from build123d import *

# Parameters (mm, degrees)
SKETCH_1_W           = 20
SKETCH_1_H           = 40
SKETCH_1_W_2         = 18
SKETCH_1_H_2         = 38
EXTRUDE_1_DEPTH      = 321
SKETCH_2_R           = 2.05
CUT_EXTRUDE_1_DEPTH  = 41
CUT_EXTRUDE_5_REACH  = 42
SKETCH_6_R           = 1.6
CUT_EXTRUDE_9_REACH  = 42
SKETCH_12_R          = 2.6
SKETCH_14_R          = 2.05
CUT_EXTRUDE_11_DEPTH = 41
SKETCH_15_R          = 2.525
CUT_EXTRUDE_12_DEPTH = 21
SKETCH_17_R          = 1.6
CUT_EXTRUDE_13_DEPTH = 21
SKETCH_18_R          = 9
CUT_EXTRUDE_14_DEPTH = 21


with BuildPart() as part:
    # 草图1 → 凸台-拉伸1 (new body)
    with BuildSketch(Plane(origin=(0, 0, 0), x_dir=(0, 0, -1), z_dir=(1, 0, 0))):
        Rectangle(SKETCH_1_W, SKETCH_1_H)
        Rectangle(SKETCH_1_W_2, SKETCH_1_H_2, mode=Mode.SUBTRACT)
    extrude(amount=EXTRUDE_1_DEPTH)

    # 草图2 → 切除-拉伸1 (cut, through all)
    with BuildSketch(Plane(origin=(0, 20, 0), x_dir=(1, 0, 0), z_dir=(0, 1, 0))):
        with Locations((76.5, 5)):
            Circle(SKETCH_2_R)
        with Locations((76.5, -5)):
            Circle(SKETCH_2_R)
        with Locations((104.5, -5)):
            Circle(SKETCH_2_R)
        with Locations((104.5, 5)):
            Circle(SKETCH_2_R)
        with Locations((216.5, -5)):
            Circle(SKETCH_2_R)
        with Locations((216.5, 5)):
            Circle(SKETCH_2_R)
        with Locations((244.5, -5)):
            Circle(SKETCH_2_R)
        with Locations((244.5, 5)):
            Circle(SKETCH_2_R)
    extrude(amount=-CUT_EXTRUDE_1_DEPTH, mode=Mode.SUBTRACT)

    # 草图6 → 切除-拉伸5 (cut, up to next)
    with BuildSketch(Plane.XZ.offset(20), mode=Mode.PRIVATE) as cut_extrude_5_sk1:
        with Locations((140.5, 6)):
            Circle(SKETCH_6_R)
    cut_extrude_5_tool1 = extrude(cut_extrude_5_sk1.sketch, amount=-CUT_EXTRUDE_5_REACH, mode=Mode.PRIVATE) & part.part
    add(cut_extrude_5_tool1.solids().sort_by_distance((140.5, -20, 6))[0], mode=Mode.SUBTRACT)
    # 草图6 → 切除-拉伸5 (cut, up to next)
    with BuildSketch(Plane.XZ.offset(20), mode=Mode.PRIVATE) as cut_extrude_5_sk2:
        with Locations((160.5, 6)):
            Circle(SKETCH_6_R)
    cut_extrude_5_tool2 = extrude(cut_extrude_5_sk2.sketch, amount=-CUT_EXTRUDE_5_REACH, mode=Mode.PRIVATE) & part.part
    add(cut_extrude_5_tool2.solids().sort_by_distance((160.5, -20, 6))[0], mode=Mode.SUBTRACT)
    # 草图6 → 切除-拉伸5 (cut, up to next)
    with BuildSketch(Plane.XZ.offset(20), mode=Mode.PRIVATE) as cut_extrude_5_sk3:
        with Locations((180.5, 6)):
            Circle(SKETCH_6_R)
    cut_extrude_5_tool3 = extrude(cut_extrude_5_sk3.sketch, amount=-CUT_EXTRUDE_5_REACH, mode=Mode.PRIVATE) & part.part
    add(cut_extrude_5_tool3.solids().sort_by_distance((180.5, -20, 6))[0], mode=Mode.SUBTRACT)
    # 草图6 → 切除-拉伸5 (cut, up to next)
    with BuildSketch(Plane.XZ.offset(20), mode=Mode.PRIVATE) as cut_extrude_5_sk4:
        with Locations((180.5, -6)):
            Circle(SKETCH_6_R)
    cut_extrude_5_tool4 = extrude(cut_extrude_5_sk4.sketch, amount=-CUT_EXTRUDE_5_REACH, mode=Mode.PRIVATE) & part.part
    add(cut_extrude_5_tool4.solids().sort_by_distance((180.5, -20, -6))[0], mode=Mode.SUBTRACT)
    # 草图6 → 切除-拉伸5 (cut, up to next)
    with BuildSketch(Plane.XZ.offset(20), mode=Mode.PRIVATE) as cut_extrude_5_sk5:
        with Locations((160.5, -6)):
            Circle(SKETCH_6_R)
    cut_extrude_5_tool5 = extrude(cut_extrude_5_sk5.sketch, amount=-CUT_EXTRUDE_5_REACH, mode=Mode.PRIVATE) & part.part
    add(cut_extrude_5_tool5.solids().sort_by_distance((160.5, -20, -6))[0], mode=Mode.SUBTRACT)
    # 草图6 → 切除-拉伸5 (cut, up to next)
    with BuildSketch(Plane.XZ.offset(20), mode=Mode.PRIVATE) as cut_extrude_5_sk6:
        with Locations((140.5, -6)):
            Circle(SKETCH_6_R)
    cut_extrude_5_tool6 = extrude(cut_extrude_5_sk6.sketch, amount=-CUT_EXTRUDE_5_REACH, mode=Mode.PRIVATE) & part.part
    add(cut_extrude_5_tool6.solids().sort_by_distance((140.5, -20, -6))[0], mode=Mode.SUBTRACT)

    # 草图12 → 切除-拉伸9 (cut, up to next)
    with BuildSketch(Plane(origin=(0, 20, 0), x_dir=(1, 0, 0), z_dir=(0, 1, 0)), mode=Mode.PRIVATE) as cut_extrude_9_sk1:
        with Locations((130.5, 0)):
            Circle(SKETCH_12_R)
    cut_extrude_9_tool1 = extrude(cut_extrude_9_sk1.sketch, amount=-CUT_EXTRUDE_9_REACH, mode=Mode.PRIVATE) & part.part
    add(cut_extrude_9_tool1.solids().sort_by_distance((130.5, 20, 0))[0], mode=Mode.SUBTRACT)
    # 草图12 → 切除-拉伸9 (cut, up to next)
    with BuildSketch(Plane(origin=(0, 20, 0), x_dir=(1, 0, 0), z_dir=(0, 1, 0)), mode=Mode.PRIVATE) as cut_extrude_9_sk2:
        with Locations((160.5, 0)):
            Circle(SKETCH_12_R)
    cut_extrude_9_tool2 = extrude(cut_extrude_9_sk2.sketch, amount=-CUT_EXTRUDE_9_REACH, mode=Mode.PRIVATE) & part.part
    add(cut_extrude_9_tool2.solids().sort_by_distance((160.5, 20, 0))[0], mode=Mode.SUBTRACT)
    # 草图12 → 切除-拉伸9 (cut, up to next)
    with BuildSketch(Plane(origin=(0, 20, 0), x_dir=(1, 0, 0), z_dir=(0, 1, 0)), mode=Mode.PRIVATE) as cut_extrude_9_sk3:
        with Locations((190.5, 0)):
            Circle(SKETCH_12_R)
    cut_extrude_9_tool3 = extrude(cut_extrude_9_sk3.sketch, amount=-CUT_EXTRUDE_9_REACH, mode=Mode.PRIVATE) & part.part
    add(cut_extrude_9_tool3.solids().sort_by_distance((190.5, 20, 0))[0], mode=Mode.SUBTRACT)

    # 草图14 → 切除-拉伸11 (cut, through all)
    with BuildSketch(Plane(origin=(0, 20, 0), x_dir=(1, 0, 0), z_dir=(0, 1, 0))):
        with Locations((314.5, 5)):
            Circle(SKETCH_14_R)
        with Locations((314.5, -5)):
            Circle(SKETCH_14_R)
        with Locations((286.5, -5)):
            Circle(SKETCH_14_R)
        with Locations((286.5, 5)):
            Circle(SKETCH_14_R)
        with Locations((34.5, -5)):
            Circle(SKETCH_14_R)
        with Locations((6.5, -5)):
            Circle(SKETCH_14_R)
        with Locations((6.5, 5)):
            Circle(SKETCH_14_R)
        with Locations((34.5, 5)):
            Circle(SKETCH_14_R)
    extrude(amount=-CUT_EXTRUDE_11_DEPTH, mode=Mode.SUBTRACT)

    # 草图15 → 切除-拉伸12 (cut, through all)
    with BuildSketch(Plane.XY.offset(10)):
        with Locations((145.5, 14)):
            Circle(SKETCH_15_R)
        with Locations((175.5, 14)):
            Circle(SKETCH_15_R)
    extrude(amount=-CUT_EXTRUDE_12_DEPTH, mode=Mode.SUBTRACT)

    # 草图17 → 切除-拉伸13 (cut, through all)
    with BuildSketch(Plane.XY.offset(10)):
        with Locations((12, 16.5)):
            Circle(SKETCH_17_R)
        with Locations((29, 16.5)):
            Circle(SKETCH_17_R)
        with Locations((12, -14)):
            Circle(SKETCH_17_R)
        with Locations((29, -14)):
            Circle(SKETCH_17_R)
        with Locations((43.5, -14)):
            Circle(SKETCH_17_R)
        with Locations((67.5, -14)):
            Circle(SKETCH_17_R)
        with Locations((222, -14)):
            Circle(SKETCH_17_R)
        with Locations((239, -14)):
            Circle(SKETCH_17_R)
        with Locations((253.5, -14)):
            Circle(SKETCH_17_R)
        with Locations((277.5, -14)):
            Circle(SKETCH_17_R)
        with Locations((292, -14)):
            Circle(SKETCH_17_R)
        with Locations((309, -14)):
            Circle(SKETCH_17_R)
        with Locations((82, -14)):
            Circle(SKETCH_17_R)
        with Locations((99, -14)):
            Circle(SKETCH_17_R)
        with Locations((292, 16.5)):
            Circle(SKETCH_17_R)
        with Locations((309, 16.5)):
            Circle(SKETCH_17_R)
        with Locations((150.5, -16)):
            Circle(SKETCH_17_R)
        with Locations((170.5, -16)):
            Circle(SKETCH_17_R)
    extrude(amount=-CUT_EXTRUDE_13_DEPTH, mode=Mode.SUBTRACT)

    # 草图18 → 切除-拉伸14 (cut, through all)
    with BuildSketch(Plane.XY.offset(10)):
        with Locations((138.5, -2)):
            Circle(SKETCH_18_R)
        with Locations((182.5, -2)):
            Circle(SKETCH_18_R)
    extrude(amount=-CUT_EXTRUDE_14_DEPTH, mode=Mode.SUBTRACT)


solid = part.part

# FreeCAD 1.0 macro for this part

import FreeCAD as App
import Part
import Sketcher


def add_polygon(sketch, points):
    """Adds a closed chain of lines whose ends are joined by coincident constraints."""
    first, n = sketch.GeometryCount, len(points)
    for a, b in zip(points, points[1:] + points[:1]):
        sketch.addGeometry(Part.LineSegment(App.Vector(*a, 0), App.Vector(*b, 0)), False)
    for i in range(n):
        sketch.addConstraint(Sketcher.Constraint("Coincident", first + i, 2, first + (i + 1) % n, 1))

doc = App.newDocument("Part")
params = doc.addObject("Spreadsheet::Sheet", "Params")
for row, (alias, value) in enumerate([
    ("sketch1_width", "40 mm"),
    ("sketch1_width2", "38 mm"),
    ("sketch1_height", "20 mm"),
    ("sketch1_height2", "18 mm"),
    ("pad1_length", "321 mm"),
    ("sketch2_diameter", "4.1 mm"),
    ("sketch3_diameter", "3.2 mm"),
    ("sketch4_diameter", "3.2 mm"),
    ("sketch5_diameter", "3.2 mm"),
    ("sketch6_diameter", "3.2 mm"),
    ("sketch7_diameter", "3.2 mm"),
    ("sketch8_diameter", "3.2 mm"),
    ("sketch9_diameter", "5.2 mm"),
    ("sketch10_diameter", "5.2 mm"),
    ("sketch11_diameter", "5.2 mm"),
    ("sketch12_diameter", "4.1 mm"),
    ("sketch13_diameter", "5.05 mm"),
    ("sketch14_diameter", "3.2 mm"),
    ("sketch15_diameter", "18 mm"),
], start=1):
    params.set(f"A{row}", alias)
    params.set(f"B{row}", "=" + value)
    params.setAlias(f"B{row}", alias)

body = doc.addObject("PartDesign::Body", "Body")

# Sketch on YZ plane
sketch1 = doc.addObject("Sketcher::SketchObject", "Sketch")
body.addObject(sketch1)
sketch1.AttachmentSupport = (doc.YZ_Plane, [""])
sketch1.MapMode = "FlatFace"
add_polygon(sketch1, [(20, 10), (-20, 10), (-20, -10), (20, -10)])  # lines 0-3
add_polygon(sketch1, [(-19, -9), (-19, 9), (19, 9), (19, -9)])  # lines 4-7
sketch1.addConstraint([
    Sketcher.Constraint("Horizontal", 0),
    Sketcher.Constraint("Vertical", 1),
    Sketcher.Constraint("Horizontal", 2),
    Sketcher.Constraint("Vertical", 3),
    Sketcher.Constraint("Vertical", 4),
    Sketcher.Constraint("Horizontal", 5),
    Sketcher.Constraint("Vertical", 6),
    Sketcher.Constraint("Horizontal", 7),
    Sketcher.Constraint("Symmetric", 0, 2, 2, 2, -1, 1),
    Sketcher.Constraint("Symmetric", 4, 2, 6, 2, -1, 1),
    Sketcher.Constraint("DistanceX", 0, 2, 0, 1, 40.0),
    Sketcher.Constraint("DistanceX", 5, 1, 5, 2, 38.0),
    Sketcher.Constraint("DistanceY", 1, 2, 1, 1, 20.0),
    Sketcher.Constraint("DistanceY", 4, 1, 4, 2, 18.0),
])
sketch1.setExpression("Constraints[18]", "Params.sketch1_width")
sketch1.setExpression("Constraints[19]", "Params.sketch1_width2")
sketch1.setExpression("Constraints[20]", "Params.sketch1_height")
sketch1.setExpression("Constraints[21]", "Params.sketch1_height2")
pad1 = doc.addObject("PartDesign::Pad", "Pad")
body.addObject(pad1)
pad1.Profile = sketch1
pad1.setExpression("Length", "Params.pad1_length")

# Sketch on XZ plane
sketch2 = doc.addObject("Sketcher::SketchObject", "Sketch001")
body.addObject(sketch2)
sketch2.AttachmentSupport = (doc.XZ_Plane, [""])
sketch2.MapMode = "FlatFace"
sketch2.AttachmentOffset = App.Placement(App.Vector(0, 0, -20), App.Rotation())
sketch2.addGeometry([
    Part.Circle(App.Vector(76.5, -5, 0), App.Vector(0, 0, 1), 2),  # 0
    Part.Circle(App.Vector(76.5, 5, 0), App.Vector(0, 0, 1), 2),  # 1
    Part.Circle(App.Vector(104.5, 5, 0), App.Vector(0, 0, 1), 2),  # 2
    Part.Circle(App.Vector(104.5, -5, 0), App.Vector(0, 0, 1), 2),  # 3
    Part.Circle(App.Vector(216.5, 5, 0), App.Vector(0, 0, 1), 2),  # 4
    Part.Circle(App.Vector(216.5, -5, 0), App.Vector(0, 0, 1), 2),  # 5
    Part.Circle(App.Vector(244.5, 5, 0), App.Vector(0, 0, 1), 2),  # 6
    Part.Circle(App.Vector(244.5, -5, 0), App.Vector(0, 0, 1), 2),  # 7
], False)
sketch2.addConstraint([
    Sketcher.Constraint("Equal", 0, 1),
    Sketcher.Constraint("Equal", 1, 2),
    Sketcher.Constraint("Equal", 2, 3),
    Sketcher.Constraint("Equal", 3, 4),
    Sketcher.Constraint("Equal", 4, 5),
    Sketcher.Constraint("Equal", 5, 6),
    Sketcher.Constraint("Equal", 6, 7),
    Sketcher.Constraint("Symmetric", 0, 3, 1, 3, -1),
    Sketcher.Constraint("Symmetric", 2, 3, 3, 3, -1),
    Sketcher.Constraint("Symmetric", 4, 3, 5, 3, -1),
    Sketcher.Constraint("Symmetric", 6, 3, 7, 3, -1),
    Sketcher.Constraint("Horizontal", 1, 3, 2, 3),
    Sketcher.Constraint("Horizontal", 2, 3, 4, 3),
    Sketcher.Constraint("Horizontal", 4, 3, 6, 3),
    Sketcher.Constraint("Diameter", 0, 4.1),
    Sketcher.Constraint("DistanceY", 0, 3, -1, 1, 5.0),
    Sketcher.Constraint("DistanceX", 1, 3, 2, 3, 28.0),
    Sketcher.Constraint("DistanceX", 2, 3, 4, 3, 112.0),
    Sketcher.Constraint("DistanceX", 4, 3, 6, 3, 28.0),
    Sketcher.Constraint("DistanceX", -1, 1, 0, 3, 76.5),
])
sketch2.setExpression("Constraints[14]", "Params.sketch2_diameter")
pocket1 = doc.addObject("PartDesign::Pocket", "Pocket")
body.addObject(pocket1)
pocket1.Profile = sketch2
pocket1.Type = "ThroughAll"
pocket1.Reversed = True

# Sketch on XZ plane
sketch3 = doc.addObject("Sketcher::SketchObject", "Sketch002")
body.addObject(sketch3)
sketch3.AttachmentSupport = (doc.XZ_Plane, [""])
sketch3.MapMode = "FlatFace"
sketch3.AttachmentOffset = App.Placement(App.Vector(0, 0, 20), App.Rotation())
sketch3.addGeometry(Part.Circle(App.Vector(140.5, 6, 0), App.Vector(0, 0, 1), 1.6), False)
sketch3.addConstraint([
    Sketcher.Constraint("Diameter", 0, 3.2),
    Sketcher.Constraint("DistanceY", -1, 1, 0, 3, 6.0),
    Sketcher.Constraint("DistanceX", -1, 1, 0, 3, 140.5),
])
sketch3.setExpression("Constraints[0]", "Params.sketch3_diameter")
pocket2 = doc.addObject("PartDesign::Pocket", "Pocket001")
body.addObject(pocket2)
pocket2.Profile = sketch3
pocket2.Type = "UpToFirst"

# Sketch on XZ plane
sketch4 = doc.addObject("Sketcher::SketchObject", "Sketch003")
body.addObject(sketch4)
sketch4.AttachmentSupport = (doc.XZ_Plane, [""])
sketch4.MapMode = "FlatFace"
sketch4.AttachmentOffset = App.Placement(App.Vector(0, 0, 20), App.Rotation())
sketch4.addGeometry(Part.Circle(App.Vector(160.5, 6, 0), App.Vector(0, 0, 1), 1.6), False)
sketch4.addConstraint([
    Sketcher.Constraint("Diameter", 0, 3.2),
    Sketcher.Constraint("DistanceY", -1, 1, 0, 3, 6.0),
    Sketcher.Constraint("DistanceX", -1, 1, 0, 3, 160.5),
])
sketch4.setExpression("Constraints[0]", "Params.sketch4_diameter")
pocket3 = doc.addObject("PartDesign::Pocket", "Pocket002")
body.addObject(pocket3)
pocket3.Profile = sketch4
pocket3.Type = "UpToFirst"

# Sketch on XZ plane
sketch5 = doc.addObject("Sketcher::SketchObject", "Sketch004")
body.addObject(sketch5)
sketch5.AttachmentSupport = (doc.XZ_Plane, [""])
sketch5.MapMode = "FlatFace"
sketch5.AttachmentOffset = App.Placement(App.Vector(0, 0, 20), App.Rotation())
sketch5.addGeometry(Part.Circle(App.Vector(180.5, 6, 0), App.Vector(0, 0, 1), 1.6), False)
sketch5.addConstraint([
    Sketcher.Constraint("Diameter", 0, 3.2),
    Sketcher.Constraint("DistanceY", -1, 1, 0, 3, 6.0),
    Sketcher.Constraint("DistanceX", -1, 1, 0, 3, 180.5),
])
sketch5.setExpression("Constraints[0]", "Params.sketch5_diameter")
pocket4 = doc.addObject("PartDesign::Pocket", "Pocket003")
body.addObject(pocket4)
pocket4.Profile = sketch5
pocket4.Type = "UpToFirst"

# Sketch on XZ plane
sketch6 = doc.addObject("Sketcher::SketchObject", "Sketch005")
body.addObject(sketch6)
sketch6.AttachmentSupport = (doc.XZ_Plane, [""])
sketch6.MapMode = "FlatFace"
sketch6.AttachmentOffset = App.Placement(App.Vector(0, 0, 20), App.Rotation())
sketch6.addGeometry(Part.Circle(App.Vector(180.5, -6, 0), App.Vector(0, 0, 1), 1.6), False)
sketch6.addConstraint([
    Sketcher.Constraint("Diameter", 0, 3.2),
    Sketcher.Constraint("DistanceY", 0, 3, -1, 1, 6.0),
    Sketcher.Constraint("DistanceX", -1, 1, 0, 3, 180.5),
])
sketch6.setExpression("Constraints[0]", "Params.sketch6_diameter")
pocket5 = doc.addObject("PartDesign::Pocket", "Pocket004")
body.addObject(pocket5)
pocket5.Profile = sketch6
pocket5.Type = "UpToFirst"

# Sketch on XZ plane
sketch7 = doc.addObject("Sketcher::SketchObject", "Sketch006")
body.addObject(sketch7)
sketch7.AttachmentSupport = (doc.XZ_Plane, [""])
sketch7.MapMode = "FlatFace"
sketch7.AttachmentOffset = App.Placement(App.Vector(0, 0, 20), App.Rotation())
sketch7.addGeometry(Part.Circle(App.Vector(160.5, -6, 0), App.Vector(0, 0, 1), 1.6), False)
sketch7.addConstraint([
    Sketcher.Constraint("Diameter", 0, 3.2),
    Sketcher.Constraint("DistanceY", 0, 3, -1, 1, 6.0),
    Sketcher.Constraint("DistanceX", -1, 1, 0, 3, 160.5),
])
sketch7.setExpression("Constraints[0]", "Params.sketch7_diameter")
pocket6 = doc.addObject("PartDesign::Pocket", "Pocket005")
body.addObject(pocket6)
pocket6.Profile = sketch7
pocket6.Type = "UpToFirst"

# Sketch on XZ plane
sketch8 = doc.addObject("Sketcher::SketchObject", "Sketch007")
body.addObject(sketch8)
sketch8.AttachmentSupport = (doc.XZ_Plane, [""])
sketch8.MapMode = "FlatFace"
sketch8.AttachmentOffset = App.Placement(App.Vector(0, 0, 20), App.Rotation())
sketch8.addGeometry(Part.Circle(App.Vector(140.5, -6, 0), App.Vector(0, 0, 1), 1.6), False)
sketch8.addConstraint([
    Sketcher.Constraint("Diameter", 0, 3.2),
    Sketcher.Constraint("DistanceY", 0, 3, -1, 1, 6.0),
    Sketcher.Constraint("DistanceX", -1, 1, 0, 3, 140.5),
])
sketch8.setExpression("Constraints[0]", "Params.sketch8_diameter")
pocket7 = doc.addObject("PartDesign::Pocket", "Pocket006")
body.addObject(pocket7)
pocket7.Profile = sketch8
pocket7.Type = "UpToFirst"

# Sketch on XZ plane
sketch9 = doc.addObject("Sketcher::SketchObject", "Sketch008")
body.addObject(sketch9)
sketch9.AttachmentSupport = (doc.XZ_Plane, [""])
sketch9.MapMode = "FlatFace"
sketch9.AttachmentOffset = App.Placement(App.Vector(0, 0, -20), App.Rotation())
sketch9.addGeometry(Part.Circle(App.Vector(130.5, 0, 0), App.Vector(0, 0, 1), 2.6), False)
sketch9.addConstraint([
    Sketcher.Constraint("PointOnObject", 0, 3, -1),
    Sketcher.Constraint("Diameter", 0, 5.2),
    Sketcher.Constraint("DistanceX", -1, 1, 0, 3, 130.5),
])
sketch9.setExpression("Constraints[1]", "Params.sketch9_diameter")
pocket8 = doc.addObject("PartDesign::Pocket", "Pocket007")
body.addObject(pocket8)
pocket8.Profile = sketch9
pocket8.Type = "UpToFirst"
pocket8.Reversed = True

# Sketch on XZ plane
sketch10 = doc.addObject("Sketcher::SketchObject", "Sketch009")
body.addObject(sketch10)
sketch10.AttachmentSupport = (doc.XZ_Plane, [""])
sketch10.MapMode = "FlatFace"
sketch10.AttachmentOffset = App.Placement(App.Vector(0, 0, -20), App.Rotation())
sketch10.addGeometry(Part.Circle(App.Vector(160.5, 0, 0), App.Vector(0, 0, 1), 2.6), False)
sketch10.addConstraint([
    Sketcher.Constraint("PointOnObject", 0, 3, -1),
    Sketcher.Constraint("Diameter", 0, 5.2),
    Sketcher.Constraint("DistanceX", -1, 1, 0, 3, 160.5),
])
sketch10.setExpression("Constraints[1]", "Params.sketch10_diameter")
pocket9 = doc.addObject("PartDesign::Pocket", "Pocket008")
body.addObject(pocket9)
pocket9.Profile = sketch10
pocket9.Type = "UpToFirst"
pocket9.Reversed = True

# Sketch on XZ plane
sketch11 = doc.addObject("Sketcher::SketchObject", "Sketch010")
body.addObject(sketch11)
sketch11.AttachmentSupport = (doc.XZ_Plane, [""])
sketch11.MapMode = "FlatFace"
sketch11.AttachmentOffset = App.Placement(App.Vector(0, 0, -20), App.Rotation())
sketch11.addGeometry(Part.Circle(App.Vector(190.5, 0, 0), App.Vector(0, 0, 1), 2.6), False)
sketch11.addConstraint([
    Sketcher.Constraint("PointOnObject", 0, 3, -1),
    Sketcher.Constraint("Diameter", 0, 5.2),
    Sketcher.Constraint("DistanceX", -1, 1, 0, 3, 190.5),
])
sketch11.setExpression("Constraints[1]", "Params.sketch11_diameter")
pocket10 = doc.addObject("PartDesign::Pocket", "Pocket009")
body.addObject(pocket10)
pocket10.Profile = sketch11
pocket10.Type = "UpToFirst"
pocket10.Reversed = True

# Sketch on XZ plane
sketch12 = doc.addObject("Sketcher::SketchObject", "Sketch011")
body.addObject(sketch12)
sketch12.AttachmentSupport = (doc.XZ_Plane, [""])
sketch12.MapMode = "FlatFace"
sketch12.AttachmentOffset = App.Placement(App.Vector(0, 0, -20), App.Rotation())
sketch12.addGeometry([
    Part.Circle(App.Vector(314.5, -5, 0), App.Vector(0, 0, 1), 2),  # 0
    Part.Circle(App.Vector(314.5, 5, 0), App.Vector(0, 0, 1), 2),  # 1
    Part.Circle(App.Vector(286.5, 5, 0), App.Vector(0, 0, 1), 2),  # 2
    Part.Circle(App.Vector(286.5, -5, 0), App.Vector(0, 0, 1), 2),  # 3
    Part.Circle(App.Vector(34.5, 5, 0), App.Vector(0, 0, 1), 2),  # 4
    Part.Circle(App.Vector(6.5, 5, 0), App.Vector(0, 0, 1), 2),  # 5
    Part.Circle(App.Vector(6.5, -5, 0), App.Vector(0, 0, 1), 2),  # 6
    Part.Circle(App.Vector(34.5, -5, 0), App.Vector(0, 0, 1), 2),  # 7
], False)
sketch12.addConstraint([
    Sketcher.Constraint("Equal", 0, 1),
    Sketcher.Constraint("Equal", 1, 2),
    Sketcher.Constraint("Equal", 2, 3),
    Sketcher.Constraint("Equal", 3, 4),
    Sketcher.Constraint("Equal", 4, 5),
    Sketcher.Constraint("Equal", 5, 6),
    Sketcher.Constraint("Equal", 6, 7),
    Sketcher.Constraint("Symmetric", 0, 3, 1, 3, -1),
    Sketcher.Constraint("Symmetric", 2, 3, 3, 3, -1),
    Sketcher.Constraint("Symmetric", 5, 3, 6, 3, -1),
    Sketcher.Constraint("Symmetric", 4, 3, 7, 3, -1),
    Sketcher.Constraint("Horizontal", 1, 3, 2, 3),
    Sketcher.Constraint("Horizontal", 2, 3, 4, 3),
    Sketcher.Constraint("Horizontal", 4, 3, 5, 3),
    Sketcher.Constraint("Diameter", 0, 4.1),
    Sketcher.Constraint("DistanceY", 0, 3, -1, 1, 5.0),
    Sketcher.Constraint("DistanceX", 2, 3, 1, 3, 28.0),
    Sketcher.Constraint("DistanceX", 4, 3, 2, 3, 252.0),
    Sketcher.Constraint("DistanceX", 5, 3, 4, 3, 28.0),
    Sketcher.Constraint("DistanceX", -1, 1, 0, 3, 314.5),
])
sketch12.setExpression("Constraints[14]", "Params.sketch12_diameter")
pocket11 = doc.addObject("PartDesign::Pocket", "Pocket010")
body.addObject(pocket11)
pocket11.Profile = sketch12
pocket11.Type = "ThroughAll"
pocket11.Reversed = True

# Sketch on XY plane
sketch13 = doc.addObject("Sketcher::SketchObject", "Sketch012")
body.addObject(sketch13)
sketch13.AttachmentSupport = (doc.XY_Plane, [""])
sketch13.MapMode = "FlatFace"
sketch13.AttachmentOffset = App.Placement(App.Vector(0, 0, 10), App.Rotation())
sketch13.addGeometry([
    Part.Circle(App.Vector(145.5, 14, 0), App.Vector(0, 0, 1), 2.5),
    Part.Circle(App.Vector(175.5, 14, 0), App.Vector(0, 0, 1), 2.5),
], False)
sketch13.addConstraint([
    Sketcher.Constraint("Equal", 0, 1),
    Sketcher.Constraint("Horizontal", 0, 3, 1, 3),
    Sketcher.Constraint("Diameter", 0, 5.05),
    Sketcher.Constraint("DistanceY", -1, 1, 0, 3, 14.0),
    Sketcher.Constraint("DistanceX", 0, 3, 1, 3, 30.0),
    Sketcher.Constraint("DistanceX", -1, 1, 0, 3, 145.5),
])
sketch13.setExpression("Constraints[2]", "Params.sketch13_diameter")
pocket12 = doc.addObject("PartDesign::Pocket", "Pocket011")
body.addObject(pocket12)
pocket12.Profile = sketch13
pocket12.Type = "ThroughAll"

# Sketch on XY plane
sketch14 = doc.addObject("Sketcher::SketchObject", "Sketch013")
body.addObject(sketch14)
sketch14.AttachmentSupport = (doc.XY_Plane, [""])
sketch14.MapMode = "FlatFace"
sketch14.AttachmentOffset = App.Placement(App.Vector(0, 0, 10), App.Rotation())
sketch14.addGeometry([
    Part.Circle(App.Vector(12, 16.5, 0), App.Vector(0, 0, 1), 1.6),  # 0
    Part.Circle(App.Vector(29, 16.5, 0), App.Vector(0, 0, 1), 1.6),  # 1
    Part.Circle(App.Vector(12, -14, 0), App.Vector(0, 0, 1), 1.6),  # 2
    Part.Circle(App.Vector(29, -14, 0), App.Vector(0, 0, 1), 1.6),  # 3
    Part.Circle(App.Vector(43.5, -14, 0), App.Vector(0, 0, 1), 1.6),  # 4
    Part.Circle(App.Vector(67.5, -14, 0), App.Vector(0, 0, 1), 1.6),  # 5
    Part.Circle(App.Vector(222, -14, 0), App.Vector(0, 0, 1), 1.6),  # 6
    Part.Circle(App.Vector(239, -14, 0), App.Vector(0, 0, 1), 1.6),  # 7
    Part.Circle(App.Vector(253.5, -14, 0), App.Vector(0, 0, 1), 1.6),  # 8
    Part.Circle(App.Vector(277.5, -14, 0), App.Vector(0, 0, 1), 1.6),  # 9
    Part.Circle(App.Vector(292, -14, 0), App.Vector(0, 0, 1), 1.6),  # 10
    Part.Circle(App.Vector(309, -14, 0), App.Vector(0, 0, 1), 1.6),  # 11
    Part.Circle(App.Vector(82, -14, 0), App.Vector(0, 0, 1), 1.6),  # 12
    Part.Circle(App.Vector(99, -14, 0), App.Vector(0, 0, 1), 1.6),  # 13
    Part.Circle(App.Vector(292, 16.5, 0), App.Vector(0, 0, 1), 1.6),  # 14
    Part.Circle(App.Vector(309, 16.5, 0), App.Vector(0, 0, 1), 1.6),  # 15
    Part.Circle(App.Vector(150.5, -16, 0), App.Vector(0, 0, 1), 1.6),  # 16
    Part.Circle(App.Vector(170.5, -16, 0), App.Vector(0, 0, 1), 1.6),  # 17
], False)
sketch14.addConstraint([
    Sketcher.Constraint("Equal", 0, 1),
    Sketcher.Constraint("Equal", 1, 2),
    Sketcher.Constraint("Equal", 2, 3),
    Sketcher.Constraint("Equal", 3, 4),
    Sketcher.Constraint("Equal", 4, 5),
    Sketcher.Constraint("Equal", 5, 6),
    Sketcher.Constraint("Equal", 6, 7),
    Sketcher.Constraint("Equal", 7, 8),
    Sketcher.Constraint("Equal", 8, 9),
    Sketcher.Constraint("Equal", 9, 10),
    Sketcher.Constraint("Equal", 10, 11),
    Sketcher.Constraint("Equal", 11, 12),
    Sketcher.Constraint("Equal", 12, 13),
    Sketcher.Constraint("Equal", 13, 14),
    Sketcher.Constraint("Equal", 14, 15),
    Sketcher.Constraint("Equal", 15, 16),
    Sketcher.Constraint("Equal", 16, 17),
    Sketcher.Constraint("Horizontal", 0, 3, 1, 3),
    Sketcher.Constraint("Horizontal", 2, 3, 3, 3),
    Sketcher.Constraint("Horizontal", 3, 3, 4, 3),
    Sketcher.Constraint("Horizontal", 4, 3, 5, 3),
    Sketcher.Constraint("Horizontal", 5, 3, 6, 3),
    Sketcher.Constraint("Horizontal", 6, 3, 7, 3),
    Sketcher.Constraint("Horizontal", 7, 3, 8, 3),
    Sketcher.Constraint("Horizontal", 8, 3, 9, 3),
    Sketcher.Constraint("Horizontal", 9, 3, 10, 3),
    Sketcher.Constraint("Horizontal", 10, 3, 11, 3),
    Sketcher.Constraint("Horizontal", 11, 3, 12, 3),
    Sketcher.Constraint("Horizontal", 12, 3, 13, 3),
    Sketcher.Constraint("Horizontal", 1, 3, 14, 3),
    Sketcher.Constraint("Horizontal", 14, 3, 15, 3),
    Sketcher.Constraint("Horizontal", 16, 3, 17, 3),
    Sketcher.Constraint("Vertical", 0, 3, 2, 3),
    Sketcher.Constraint("Vertical", 1, 3, 3, 3),
    Sketcher.Constraint("Vertical", 10, 3, 14, 3),
    Sketcher.Constraint("Vertical", 11, 3, 15, 3),
    Sketcher.Constraint("Diameter", 0, 3.2),
    Sketcher.Constraint("DistanceX", -1, 1, 0, 3, 12.0),
    Sketcher.Constraint("DistanceX", -1, 1, 1, 3, 29.0),
    Sketcher.Constraint("DistanceY", 2, 3, -1, 1, 14.0),
    Sketcher.Constraint("DistanceX", -1, 1, 6, 3, 222.0),
    Sketcher.Constraint("DistanceX", -1, 1, 7, 3, 239.0),
    Sketcher.Constraint("DistanceX", -1, 1, 10, 3, 292.0),
    Sketcher.Constraint("DistanceX", -1, 1, 11, 3, 309.0),
    Sketcher.Constraint("DistanceX", -1, 1, 12, 3, 82.0),
    Sketcher.Constraint("DistanceX", -1, 1, 13, 3, 99.0),
    Sketcher.Constraint("DistanceY", 16, 3, -1, 1, 16.0),
    Sketcher.Constraint("DistanceX", 4, 3, 5, 3, 24.0),
    Sketcher.Constraint("DistanceX", 5, 3, 8, 3, 186.0),
    Sketcher.Constraint("DistanceX", 8, 3, 9, 3, 24.0),
    Sketcher.Constraint("DistanceX", 5, 3, 16, 3, 83.0),
    Sketcher.Constraint("DistanceX", 16, 3, 17, 3, 20.0),
    Sketcher.Constraint("DistanceY", -1, 1, 0, 3, 16.5),
    Sketcher.Constraint("DistanceX", -1, 1, 4, 3, 43.5),
])
sketch14.setExpression("Constraints[36]", "Params.sketch14_diameter")
pocket13 = doc.addObject("PartDesign::Pocket", "Pocket012")
body.addObject(pocket13)
pocket13.Profile = sketch14
pocket13.Type = "ThroughAll"

# Sketch on XY plane
sketch15 = doc.addObject("Sketcher::SketchObject", "Sketch014")
body.addObject(sketch15)
sketch15.AttachmentSupport = (doc.XY_Plane, [""])
sketch15.MapMode = "FlatFace"
sketch15.AttachmentOffset = App.Placement(App.Vector(0, 0, 10), App.Rotation())
sketch15.addGeometry([
    Part.Circle(App.Vector(138, -2, 0), App.Vector(0, 0, 1), 9),
    Part.Circle(App.Vector(182, -2, 0), App.Vector(0, 0, 1), 9),
], False)
sketch15.addConstraint([
    Sketcher.Constraint("Equal", 0, 1),
    Sketcher.Constraint("Horizontal", 0, 3, 1, 3),
    Sketcher.Constraint("Diameter", 0, 18.0),
    Sketcher.Constraint("DistanceY", 0, 3, -1, 1, 2.0),
    Sketcher.Constraint("DistanceX", 0, 3, 1, 3, 44.0),
    Sketcher.Constraint("DistanceX", -1, 1, 0, 3, 138.5),
])
sketch15.setExpression("Constraints[2]", "Params.sketch15_diameter")
pocket14 = doc.addObject("PartDesign::Pocket", "Pocket013")
body.addObject(pocket14)
pocket14.Profile = sketch15
pocket14.Type = "ThroughAll"

doc.recompute()
